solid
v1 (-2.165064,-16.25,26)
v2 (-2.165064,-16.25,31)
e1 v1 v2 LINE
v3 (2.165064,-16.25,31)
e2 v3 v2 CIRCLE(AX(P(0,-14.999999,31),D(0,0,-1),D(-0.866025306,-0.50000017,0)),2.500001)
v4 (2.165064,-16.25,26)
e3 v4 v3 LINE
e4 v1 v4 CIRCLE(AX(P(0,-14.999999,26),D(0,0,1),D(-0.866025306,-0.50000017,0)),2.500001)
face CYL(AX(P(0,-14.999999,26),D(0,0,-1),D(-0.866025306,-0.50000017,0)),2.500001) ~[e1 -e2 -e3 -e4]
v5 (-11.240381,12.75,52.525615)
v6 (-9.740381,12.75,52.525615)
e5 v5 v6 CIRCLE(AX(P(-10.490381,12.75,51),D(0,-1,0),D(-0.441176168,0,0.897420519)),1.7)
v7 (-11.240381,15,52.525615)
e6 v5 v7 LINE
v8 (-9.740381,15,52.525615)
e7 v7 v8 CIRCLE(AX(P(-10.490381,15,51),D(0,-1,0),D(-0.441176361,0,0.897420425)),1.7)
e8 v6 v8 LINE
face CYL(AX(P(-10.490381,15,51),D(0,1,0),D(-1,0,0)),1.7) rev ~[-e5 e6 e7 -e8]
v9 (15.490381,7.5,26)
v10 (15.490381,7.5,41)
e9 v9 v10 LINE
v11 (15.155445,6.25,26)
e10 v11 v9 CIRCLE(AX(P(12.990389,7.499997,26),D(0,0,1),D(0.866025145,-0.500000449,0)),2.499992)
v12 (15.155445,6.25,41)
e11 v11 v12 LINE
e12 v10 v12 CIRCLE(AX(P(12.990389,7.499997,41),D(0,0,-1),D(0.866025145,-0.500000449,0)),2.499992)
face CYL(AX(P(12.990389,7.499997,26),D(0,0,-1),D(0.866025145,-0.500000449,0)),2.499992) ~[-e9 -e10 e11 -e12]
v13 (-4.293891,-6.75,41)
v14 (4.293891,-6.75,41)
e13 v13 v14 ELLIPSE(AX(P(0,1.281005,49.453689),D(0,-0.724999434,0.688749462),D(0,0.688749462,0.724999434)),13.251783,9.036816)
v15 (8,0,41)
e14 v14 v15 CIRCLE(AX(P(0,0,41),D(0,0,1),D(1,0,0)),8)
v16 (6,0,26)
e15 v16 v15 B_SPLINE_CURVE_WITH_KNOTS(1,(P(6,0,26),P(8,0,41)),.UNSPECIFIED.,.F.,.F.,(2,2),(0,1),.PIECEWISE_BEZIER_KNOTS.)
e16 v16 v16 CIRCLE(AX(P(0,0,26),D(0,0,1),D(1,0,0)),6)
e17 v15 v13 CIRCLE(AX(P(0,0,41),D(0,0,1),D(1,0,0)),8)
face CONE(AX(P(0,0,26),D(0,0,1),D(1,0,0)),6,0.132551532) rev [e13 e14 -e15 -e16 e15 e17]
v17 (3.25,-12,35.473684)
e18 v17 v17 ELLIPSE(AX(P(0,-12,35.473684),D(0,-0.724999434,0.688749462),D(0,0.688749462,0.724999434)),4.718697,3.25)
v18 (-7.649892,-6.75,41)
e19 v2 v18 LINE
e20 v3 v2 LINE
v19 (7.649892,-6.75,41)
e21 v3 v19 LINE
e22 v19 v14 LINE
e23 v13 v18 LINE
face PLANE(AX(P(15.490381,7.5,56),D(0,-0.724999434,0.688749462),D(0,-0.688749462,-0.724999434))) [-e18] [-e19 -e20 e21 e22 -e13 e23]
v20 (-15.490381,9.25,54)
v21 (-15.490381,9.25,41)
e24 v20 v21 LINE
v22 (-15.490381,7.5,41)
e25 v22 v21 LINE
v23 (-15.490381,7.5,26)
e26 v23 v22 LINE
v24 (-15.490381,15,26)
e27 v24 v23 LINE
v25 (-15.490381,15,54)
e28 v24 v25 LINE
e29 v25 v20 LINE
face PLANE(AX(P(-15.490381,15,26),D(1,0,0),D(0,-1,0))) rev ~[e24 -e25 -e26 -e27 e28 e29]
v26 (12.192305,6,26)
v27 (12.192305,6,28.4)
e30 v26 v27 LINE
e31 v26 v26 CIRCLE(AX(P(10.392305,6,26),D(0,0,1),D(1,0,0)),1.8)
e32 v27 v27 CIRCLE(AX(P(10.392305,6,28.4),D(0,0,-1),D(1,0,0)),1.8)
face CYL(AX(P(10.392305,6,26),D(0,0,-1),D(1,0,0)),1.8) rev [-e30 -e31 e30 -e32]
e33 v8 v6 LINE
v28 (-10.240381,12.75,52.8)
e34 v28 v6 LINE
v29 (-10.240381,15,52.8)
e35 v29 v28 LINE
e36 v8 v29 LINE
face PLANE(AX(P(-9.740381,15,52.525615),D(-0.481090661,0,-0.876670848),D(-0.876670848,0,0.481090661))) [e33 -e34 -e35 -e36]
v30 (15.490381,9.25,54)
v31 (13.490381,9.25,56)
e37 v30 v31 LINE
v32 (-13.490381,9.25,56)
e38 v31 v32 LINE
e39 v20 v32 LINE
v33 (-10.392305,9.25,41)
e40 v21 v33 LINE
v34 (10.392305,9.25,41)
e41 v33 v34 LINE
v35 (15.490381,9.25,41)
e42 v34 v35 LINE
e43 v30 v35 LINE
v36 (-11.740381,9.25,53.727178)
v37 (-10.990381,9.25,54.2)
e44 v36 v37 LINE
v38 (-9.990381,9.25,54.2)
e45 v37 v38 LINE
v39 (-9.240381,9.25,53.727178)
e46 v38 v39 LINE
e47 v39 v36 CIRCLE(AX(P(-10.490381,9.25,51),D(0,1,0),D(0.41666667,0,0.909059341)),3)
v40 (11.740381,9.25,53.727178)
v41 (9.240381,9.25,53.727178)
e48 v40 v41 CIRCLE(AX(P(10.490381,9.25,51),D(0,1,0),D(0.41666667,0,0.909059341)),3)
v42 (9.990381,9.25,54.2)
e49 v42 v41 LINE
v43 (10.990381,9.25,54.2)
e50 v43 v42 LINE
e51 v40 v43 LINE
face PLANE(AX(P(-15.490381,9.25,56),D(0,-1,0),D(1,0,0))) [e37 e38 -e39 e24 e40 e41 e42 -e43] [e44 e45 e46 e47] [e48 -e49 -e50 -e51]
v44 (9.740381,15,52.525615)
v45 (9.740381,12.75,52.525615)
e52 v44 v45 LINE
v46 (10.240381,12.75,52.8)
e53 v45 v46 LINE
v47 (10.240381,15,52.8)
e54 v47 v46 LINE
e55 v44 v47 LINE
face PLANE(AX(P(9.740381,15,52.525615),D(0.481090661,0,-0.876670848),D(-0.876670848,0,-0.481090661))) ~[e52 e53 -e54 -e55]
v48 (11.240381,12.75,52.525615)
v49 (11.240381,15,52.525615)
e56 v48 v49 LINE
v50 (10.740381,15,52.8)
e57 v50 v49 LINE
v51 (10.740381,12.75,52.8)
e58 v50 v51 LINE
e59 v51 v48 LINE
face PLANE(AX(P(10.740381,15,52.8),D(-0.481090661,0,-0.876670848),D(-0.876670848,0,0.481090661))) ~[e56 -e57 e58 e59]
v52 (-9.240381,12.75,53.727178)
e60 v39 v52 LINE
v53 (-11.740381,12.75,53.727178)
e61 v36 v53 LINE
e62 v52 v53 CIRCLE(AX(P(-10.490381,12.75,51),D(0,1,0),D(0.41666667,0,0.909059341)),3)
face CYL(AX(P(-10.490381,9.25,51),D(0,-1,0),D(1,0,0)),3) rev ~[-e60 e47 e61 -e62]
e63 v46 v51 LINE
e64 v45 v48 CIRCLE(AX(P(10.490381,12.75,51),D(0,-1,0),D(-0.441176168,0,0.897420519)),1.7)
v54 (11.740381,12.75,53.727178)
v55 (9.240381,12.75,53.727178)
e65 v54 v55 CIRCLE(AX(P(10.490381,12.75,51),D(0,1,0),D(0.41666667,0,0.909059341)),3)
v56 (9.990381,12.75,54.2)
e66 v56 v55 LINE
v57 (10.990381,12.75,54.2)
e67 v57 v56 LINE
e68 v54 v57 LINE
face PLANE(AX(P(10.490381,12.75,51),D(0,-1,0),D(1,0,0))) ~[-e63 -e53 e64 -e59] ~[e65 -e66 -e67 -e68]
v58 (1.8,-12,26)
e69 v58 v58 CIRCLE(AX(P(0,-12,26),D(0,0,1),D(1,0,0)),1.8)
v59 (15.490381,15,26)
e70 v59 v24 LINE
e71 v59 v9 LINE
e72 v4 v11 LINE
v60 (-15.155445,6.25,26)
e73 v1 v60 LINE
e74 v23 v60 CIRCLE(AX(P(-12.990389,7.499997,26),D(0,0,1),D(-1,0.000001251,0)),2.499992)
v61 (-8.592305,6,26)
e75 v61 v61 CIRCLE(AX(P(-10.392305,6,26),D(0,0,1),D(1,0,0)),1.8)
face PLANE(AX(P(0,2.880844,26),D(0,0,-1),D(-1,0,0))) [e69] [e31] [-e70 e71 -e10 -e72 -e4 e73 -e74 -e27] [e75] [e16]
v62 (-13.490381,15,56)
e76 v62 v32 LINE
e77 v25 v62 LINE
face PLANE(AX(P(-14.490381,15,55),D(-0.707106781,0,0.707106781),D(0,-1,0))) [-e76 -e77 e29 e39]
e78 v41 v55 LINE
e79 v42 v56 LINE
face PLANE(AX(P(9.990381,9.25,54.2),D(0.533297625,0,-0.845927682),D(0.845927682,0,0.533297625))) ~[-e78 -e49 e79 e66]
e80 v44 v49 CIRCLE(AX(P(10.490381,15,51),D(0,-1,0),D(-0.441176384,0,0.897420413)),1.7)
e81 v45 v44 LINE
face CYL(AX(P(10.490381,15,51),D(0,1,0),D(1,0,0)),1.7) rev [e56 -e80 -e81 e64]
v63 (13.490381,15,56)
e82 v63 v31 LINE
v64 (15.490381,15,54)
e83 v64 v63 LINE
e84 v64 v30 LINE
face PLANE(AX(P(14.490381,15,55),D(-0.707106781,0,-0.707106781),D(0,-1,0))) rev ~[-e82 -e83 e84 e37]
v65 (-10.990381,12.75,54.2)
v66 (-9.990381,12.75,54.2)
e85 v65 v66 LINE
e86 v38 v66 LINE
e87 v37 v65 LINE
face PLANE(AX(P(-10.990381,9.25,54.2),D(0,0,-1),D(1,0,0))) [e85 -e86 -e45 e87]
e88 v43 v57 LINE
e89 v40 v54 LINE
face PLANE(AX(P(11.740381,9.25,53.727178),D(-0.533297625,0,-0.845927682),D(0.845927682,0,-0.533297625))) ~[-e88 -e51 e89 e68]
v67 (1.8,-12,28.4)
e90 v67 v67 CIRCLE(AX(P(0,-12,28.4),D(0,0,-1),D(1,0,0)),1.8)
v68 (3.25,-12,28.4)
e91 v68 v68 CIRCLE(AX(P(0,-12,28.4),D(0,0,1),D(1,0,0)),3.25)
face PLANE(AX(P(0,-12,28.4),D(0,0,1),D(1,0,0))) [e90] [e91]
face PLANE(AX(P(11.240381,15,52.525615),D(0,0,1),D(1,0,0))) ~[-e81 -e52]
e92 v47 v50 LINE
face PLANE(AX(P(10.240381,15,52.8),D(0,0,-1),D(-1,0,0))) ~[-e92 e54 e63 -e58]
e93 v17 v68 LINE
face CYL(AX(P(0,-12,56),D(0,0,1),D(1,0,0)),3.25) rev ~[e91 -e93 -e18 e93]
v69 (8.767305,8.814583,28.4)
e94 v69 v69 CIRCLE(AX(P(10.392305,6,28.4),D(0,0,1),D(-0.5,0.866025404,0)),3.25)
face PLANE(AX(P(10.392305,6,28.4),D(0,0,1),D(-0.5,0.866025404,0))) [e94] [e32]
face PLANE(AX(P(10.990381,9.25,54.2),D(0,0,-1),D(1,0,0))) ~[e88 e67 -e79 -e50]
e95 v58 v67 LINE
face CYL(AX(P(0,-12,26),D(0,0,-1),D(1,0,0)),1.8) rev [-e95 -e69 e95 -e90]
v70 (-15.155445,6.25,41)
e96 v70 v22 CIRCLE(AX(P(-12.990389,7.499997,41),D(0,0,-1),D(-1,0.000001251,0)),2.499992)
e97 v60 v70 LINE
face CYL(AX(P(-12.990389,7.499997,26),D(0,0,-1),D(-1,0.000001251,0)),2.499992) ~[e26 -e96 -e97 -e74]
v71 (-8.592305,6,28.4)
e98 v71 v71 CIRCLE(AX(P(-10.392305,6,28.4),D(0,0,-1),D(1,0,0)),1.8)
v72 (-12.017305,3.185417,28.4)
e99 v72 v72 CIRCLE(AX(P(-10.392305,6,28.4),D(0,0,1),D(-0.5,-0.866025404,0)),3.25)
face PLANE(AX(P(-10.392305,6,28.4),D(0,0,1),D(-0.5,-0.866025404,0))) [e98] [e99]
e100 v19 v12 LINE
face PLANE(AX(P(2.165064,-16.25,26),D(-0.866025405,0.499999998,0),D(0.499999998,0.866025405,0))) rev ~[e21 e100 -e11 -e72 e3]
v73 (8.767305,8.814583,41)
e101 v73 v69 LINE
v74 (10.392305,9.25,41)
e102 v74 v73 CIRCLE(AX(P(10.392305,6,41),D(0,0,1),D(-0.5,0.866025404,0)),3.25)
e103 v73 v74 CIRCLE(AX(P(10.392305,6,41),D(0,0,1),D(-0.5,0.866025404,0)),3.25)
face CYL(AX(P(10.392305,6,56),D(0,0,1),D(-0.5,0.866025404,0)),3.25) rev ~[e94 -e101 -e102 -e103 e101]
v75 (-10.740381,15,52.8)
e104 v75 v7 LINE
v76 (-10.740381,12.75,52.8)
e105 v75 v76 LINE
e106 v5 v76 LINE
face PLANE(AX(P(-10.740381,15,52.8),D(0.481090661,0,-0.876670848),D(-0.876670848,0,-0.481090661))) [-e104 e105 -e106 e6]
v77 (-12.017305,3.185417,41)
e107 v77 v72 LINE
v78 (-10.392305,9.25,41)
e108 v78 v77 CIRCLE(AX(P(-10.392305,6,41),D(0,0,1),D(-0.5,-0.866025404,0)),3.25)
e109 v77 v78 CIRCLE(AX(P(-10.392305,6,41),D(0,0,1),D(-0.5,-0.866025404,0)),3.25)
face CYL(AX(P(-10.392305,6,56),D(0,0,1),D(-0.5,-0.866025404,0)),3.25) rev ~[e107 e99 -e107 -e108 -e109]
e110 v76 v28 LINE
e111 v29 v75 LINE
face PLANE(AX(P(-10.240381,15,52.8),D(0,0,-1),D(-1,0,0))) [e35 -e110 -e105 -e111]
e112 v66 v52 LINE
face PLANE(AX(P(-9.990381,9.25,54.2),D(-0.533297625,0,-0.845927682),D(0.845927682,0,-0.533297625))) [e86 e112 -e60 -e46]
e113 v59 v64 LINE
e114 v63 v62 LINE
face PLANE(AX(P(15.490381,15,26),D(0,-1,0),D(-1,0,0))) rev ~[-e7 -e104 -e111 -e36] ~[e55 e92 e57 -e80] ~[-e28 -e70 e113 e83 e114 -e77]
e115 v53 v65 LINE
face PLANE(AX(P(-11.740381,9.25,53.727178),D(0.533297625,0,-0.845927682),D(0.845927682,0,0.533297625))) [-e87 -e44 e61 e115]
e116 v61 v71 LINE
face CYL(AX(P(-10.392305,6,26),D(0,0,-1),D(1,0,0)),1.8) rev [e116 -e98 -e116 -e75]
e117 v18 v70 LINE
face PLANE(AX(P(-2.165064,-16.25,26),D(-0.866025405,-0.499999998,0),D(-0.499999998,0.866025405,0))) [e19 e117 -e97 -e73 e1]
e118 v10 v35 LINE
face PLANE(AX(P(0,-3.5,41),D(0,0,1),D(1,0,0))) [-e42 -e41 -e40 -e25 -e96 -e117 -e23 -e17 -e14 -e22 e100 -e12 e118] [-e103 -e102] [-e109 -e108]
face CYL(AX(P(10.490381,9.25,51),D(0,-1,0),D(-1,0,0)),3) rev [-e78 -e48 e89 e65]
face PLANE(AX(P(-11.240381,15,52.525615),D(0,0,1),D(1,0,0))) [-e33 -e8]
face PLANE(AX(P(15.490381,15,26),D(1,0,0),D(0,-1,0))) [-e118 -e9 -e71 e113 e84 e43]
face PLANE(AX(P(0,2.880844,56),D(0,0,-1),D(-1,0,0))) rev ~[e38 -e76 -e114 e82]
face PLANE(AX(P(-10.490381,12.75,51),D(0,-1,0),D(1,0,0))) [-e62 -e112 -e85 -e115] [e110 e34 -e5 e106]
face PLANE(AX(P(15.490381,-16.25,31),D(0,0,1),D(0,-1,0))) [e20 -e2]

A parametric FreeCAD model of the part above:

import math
import FreeCAD as App
import Part
import Sketcher
from FreeCAD import Vector
Q = App.Units.Quantity


def edges_at(feature, points):
    """Names of the edges that pass closest to the given points."""
    edges = feature.Shape.Edges
    near = lambda p: min(range(len(edges)), key=lambda i: edges[i].distToShape(Part.Vertex(*p))[0])
    return sorted({f"Edge{near(p) + 1}" for p in points})


def add_polygon(sketch, points):
    """Adds a closed chain of lines whose ends are joined by coincident constraints."""
    first, n = sketch.GeometryCount, len(points)
    for a, b in zip(points, points[1:] + points[:1]):
        sketch.addGeometry(Part.LineSegment(App.Vector(*a, 0), App.Vector(*b, 0)), False)
    for i in range(n):
        sketch.addConstraint(Sketcher.Constraint("Coincident", first + i, 2, first + (i + 1) % n, 1))

doc = App.newDocument("Part")
body = doc.addObject("PartDesign::Body", "Body")

# Sketch on XY plane
sketch1 = doc.addObject("Sketcher::SketchObject", "Sketch")
body.addObject(sketch1)
sketch1.AttachmentSupport = (doc.XY_Plane, [""])
sketch1.MapMode = "FlatFace"
sketch1.addGeometry([
    Part.LineSegment(Vector(-15.2, 6.2, 0), Vector(-2.2, -16.2, 0)),  # 0
    Part.ArcOfCircle(Part.Circle(Vector(0, -15, 0), Vector(0, 0, 1), 2.5), math.radians(-150), math.radians(-30)),  # 1
    Part.LineSegment(Vector(2.2, -16.2, 0), Vector(15.2, 6.2, 0)),  # 2
    Part.ArcOfCircle(Part.Circle(Vector(13, 7.5, 0), Vector(0, 0, 1), 2.5), math.radians(-30), math.radians(0)),  # 3
    Part.LineSegment(Vector(15.5, 7.5, 0), Vector(15.5, 15, 0)),  # 4
    Part.LineSegment(Vector(15.5, 15, 0), Vector(-15.5, 15, 0)),  # 5
    Part.LineSegment(Vector(-15.5, 15, 0), Vector(-15.5, 7.5, 0)),  # 6
    Part.ArcOfCircle(Part.Circle(Vector(-13, 7.5, 0), Vector(0, 0, 1), 2.5), math.radians(180), math.radians(210)),  # 7
    Part.Circle(Vector(0, -12, 0), Vector(0, 0, 1), 1.8),  # 8
    Part.Circle(Vector(10.4, 6, 0), Vector(0, 0, 1), 1.8),  # 9
    Part.Circle(Vector(0, 0, 0), Vector(0, 0, 1), 6),  # 10
    Part.Circle(Vector(-10.4, 6, 0), Vector(0, 0, 1), 1.8),  # 11
], False)
sketch1.addConstraint([
    Sketcher.Constraint("Tangent", 0, 2, 1, 1),
    Sketcher.Constraint("Tangent", 1, 2, 2, 1),
    Sketcher.Constraint("Tangent", 2, 2, 3, 1),
    Sketcher.Constraint("Tangent", 3, 2, 4, 1),
    Sketcher.Constraint("Coincident", 4, 2, 5, 1),
    Sketcher.Constraint("Coincident", 5, 2, 6, 1),
    Sketcher.Constraint("Tangent", 6, 2, 7, 1),
    Sketcher.Constraint("Tangent", 7, 2, 0, 1),
    Sketcher.Constraint("Vertical", 4),
    Sketcher.Constraint("Horizontal", 5),
    Sketcher.Constraint("Vertical", 6),
    Sketcher.Constraint("Coincident", 10, 3, -1, 1),
    Sketcher.Constraint("Equal", 3, 7),
    Sketcher.Constraint("Equal", 8, 9),
    Sketcher.Constraint("Equal", 9, 11),
    Sketcher.Constraint("Symmetric", 3, 3, 7, 3, -2),
    Sketcher.Constraint("Symmetric", 9, 3, 11, 3, -2),
    Sketcher.Constraint("PointOnObject", 1, 3, -2),
    Sketcher.Constraint("PointOnObject", 8, 3, -2),
    Sketcher.Constraint("Diameter", 10, 12.0),
    Sketcher.Constraint("Diameter", 8, 3.6),
    Sketcher.Constraint("Radius", 1, 2.500001),
    Sketcher.Constraint("Angle", 0, Q("-60 deg")),
    Sketcher.Constraint("DistanceY", 4, 1, 4, 2, 7.5),
    Sketcher.Constraint("DistanceY", 1, 3, -1, 1, 14.999999),
    Sketcher.Constraint("DistanceY", 8, 3, -1, 1, 12.0),
    Sketcher.Constraint("DistanceY", -1, 1, 9, 3, 6.0),
    Sketcher.Constraint("DistanceY", -1, 1, 4, 2, 15.0),
    Sketcher.Constraint("DistanceY", -1, 1, 2, 2, 6.25),
    Sketcher.Constraint("DistanceX", 11, 3, 9, 3, 20.78461),
])
pad1 = doc.addObject("PartDesign::Pad", "Pad")
body.addObject(pad1)
pad1.Profile = sketch1
pad1.Length = 30

# Sketch on XY plane
sketch2 = doc.addObject("Sketcher::SketchObject", "Sketch001")
body.addObject(sketch2)
sketch2.AttachmentSupport = (doc.XY_Plane, [""])
sketch2.MapMode = "FlatFace"
sketch2.AttachmentOffset = App.Placement(Vector(0, 0, 30), App.Rotation())
sketch2.addGeometry(Part.Circle(Vector(0, -12, 0), Vector(0, 0, 1), 3.2), False)
sketch2.addConstraint([
    Sketcher.Constraint("PointOnObject", 0, 3, -2),
    Sketcher.Constraint("Diameter", 0, 6.5),
    Sketcher.Constraint("DistanceY", 0, 3, -1, 1, 12.0),
])
pocket1 = doc.addObject("PartDesign::Pocket", "Pocket")
body.addObject(pocket1)
pocket1.Profile = sketch2
pocket1.Length = 27.6
doc.recompute()

polarpattern = doc.addObject("PartDesign::PolarPattern", "PolarPattern")
body.addObject(polarpattern)
polarpattern.Originals = [pocket1]
polarpattern.Axis = (doc.Z_Axis, [""])
polarpattern.Angle = 360
polarpattern.Occurrences = 3
body.Tip = polarpattern

# Sketch on YZ plane
sketch3 = doc.addObject("Sketcher::SketchObject", "Sketch002")
body.addObject(sketch3)
sketch3.AttachmentSupport = (doc.YZ_Plane, [""])
sketch3.MapMode = "FlatFace"
sketch3.AttachmentOffset = App.Placement(Vector(0, 0, 15.490381), App.Rotation())
add_polygon(sketch3, [(-16.2, 5), (7.5, 30), (-18.8, 30), (-18.8, 5)])  # lines 0-3
sketch3.addConstraint([
    Sketcher.Constraint("Horizontal", 1),
    Sketcher.Constraint("Vertical", 2),
    Sketcher.Constraint("Horizontal", 3),
    Sketcher.Constraint("DistanceY", 2, 2, 2, 1, 25.0),
    Sketcher.Constraint("DistanceX", 3, 1, 3, 2, 2.5),
    Sketcher.Constraint("DistanceY", -1, 1, 0, 2, 30.0),
    Sketcher.Constraint("DistanceX", 1, 2, 1, 1, 26.25),
    Sketcher.Constraint("DistanceX", -1, 1, 0, 2, 7.5),
])
pocket2 = doc.addObject("PartDesign::Pocket", "Pocket001")
body.addObject(pocket2)
pocket2.Profile = sketch3
pocket2.Type = "ThroughAll"

# Sketch on XY plane
sketch4 = doc.addObject("Sketcher::SketchObject", "Sketch003")
body.addObject(sketch4)
sketch4.AttachmentSupport = (doc.XY_Plane, [""])
sketch4.MapMode = "FlatFace"
sketch4.AttachmentOffset = App.Placement(Vector(0, 0, 30), App.Rotation())
add_polygon(sketch4, [(-15, 9), (-15, -16), (15, -16), (15, 9)])  # lines 0-3
sketch4.addConstraint([
    Sketcher.Constraint("Vertical", 0),
    Sketcher.Constraint("Horizontal", 1),
    Sketcher.Constraint("Vertical", 2),
    Sketcher.Constraint("Horizontal", 3),
    Sketcher.Constraint("DistanceY", 0, 2, 0, 1, 25.5),
    Sketcher.Constraint("DistanceY", 0, 2, -1, 1, 16.25),
    Sketcher.Constraint("DistanceX", 1, 1, 1, 2, 30.980762),
    Sketcher.Constraint("DistanceX", 0, 2, -1, 1, 15.490381),
])
pocket3 = doc.addObject("PartDesign::Pocket", "Pocket002")
body.addObject(pocket3)
pocket3.Profile = sketch4
pocket3.Length = 15

# Sketch on XZ plane
sketch5 = doc.addObject("Sketcher::SketchObject", "Sketch004")
body.addObject(sketch5)
sketch5.AttachmentSupport = (doc.XZ_Plane, [""])
sketch5.MapMode = "FlatFace"
sketch5.AttachmentOffset = App.Placement(Vector(0, 0, -15), App.Rotation())
sketch5.addGeometry(Part.Circle(Vector(-10.5, 25, 0), Vector(0, 0, 1), 1.7), False)
sketch5.addConstraint([
    Sketcher.Constraint("Diameter", 0, 3.4),
    Sketcher.Constraint("DistanceY", -1, 1, 0, 3, 25.0),
    Sketcher.Constraint("DistanceX", 0, 3, -1, 1, 10.490381),
])
pocket4 = doc.addObject("PartDesign::Pocket", "Pocket003")
body.addObject(pocket4)
pocket4.Profile = sketch5
pocket4.Type = "ThroughAll"
pocket4.Reversed = True
doc.recompute()

mirrored = doc.addObject("PartDesign::Mirrored", "Mirrored")
body.addObject(mirrored)
mirrored.Originals = [pocket4]
mirrored.MirrorPlane = (doc.YZ_Plane, [""])
body.Tip = mirrored

# Sketch on XZ plane
sketch6 = doc.addObject("Sketcher::SketchObject", "Sketch005")
body.addObject(sketch6)
sketch6.AttachmentSupport = (doc.XZ_Plane, [""])
sketch6.MapMode = "FlatFace"
sketch6.AttachmentOffset = App.Placement(Vector(0, 0, -9.25), App.Rotation())
sketch6.addGeometry(Part.Circle(Vector(-10.5, 25, 0), Vector(0, 0, 1), 3), False)
sketch6.addConstraint([
    Sketcher.Constraint("Diameter", 0, 6.0),
    Sketcher.Constraint("DistanceY", -1, 1, 0, 3, 25.0),
    Sketcher.Constraint("DistanceX", 0, 3, -1, 1, 10.490381),
])
pocket5 = doc.addObject("PartDesign::Pocket", "Pocket004")
body.addObject(pocket5)
pocket5.Profile = sketch6
pocket5.Length = 3.5
doc.recompute()

mirrored2 = doc.addObject("PartDesign::Mirrored", "Mirrored001")
body.addObject(mirrored2)
mirrored2.Originals = [pocket5]
mirrored2.MirrorPlane = (doc.YZ_Plane, [""])
body.Tip = mirrored2
doc.recompute()

chamfer = doc.addObject("PartDesign::Chamfer", "Chamfer")
body.addObject(chamfer)
chamfer.Base = (mirrored2, edges_at(mirrored2, [(-15.49, 12.125, 30), (15.49, 12.125, 30)]))
chamfer.Size = 2

# Sketch on XZ plane
sketch7 = doc.addObject("Sketcher::SketchObject", "Sketch006")
body.addObject(sketch7)
sketch7.AttachmentSupport = (doc.XZ_Plane, [""])
sketch7.MapMode = "FlatFace"
sketch7.AttachmentOffset = App.Placement(Vector(0, 0, -15), App.Rotation())
add_polygon(sketch7, [(-10.2, 26.8), (-9.7, 26.5), (-11.2, 26.5), (-10.7, 26.8)])  # lines 0-3
sketch7.addConstraint([
    Sketcher.Constraint("Horizontal", 1),
    Sketcher.Constraint("Horizontal", 3),
    Sketcher.Constraint("Equal", 0, 2),
    Sketcher.Constraint("DistanceX", 1, 2, 1, 1, 1.5),
    Sketcher.Constraint("DistanceX", 3, 1, 3, 2, 0.5),
    Sketcher.Constraint("DistanceY", -1, 1, 2, 2, 26.8),
    Sketcher.Constraint("Distance", 0, 0.570339),
    Sketcher.Constraint("DistanceX", 0, 2, -1, 1, 9.740381),
])
pocket6 = doc.addObject("PartDesign::Pocket", "Pocket005")
body.addObject(pocket6)
pocket6.Profile = sketch7
pocket6.Type = "ThroughAll"
pocket6.Reversed = True
doc.recompute()

mirrored3 = doc.addObject("PartDesign::Mirrored", "Mirrored002")
body.addObject(mirrored3)
mirrored3.Originals = [pocket6]
mirrored3.MirrorPlane = (doc.YZ_Plane, [""])
body.Tip = mirrored3

# Sketch on XZ plane
sketch8 = doc.addObject("Sketcher::SketchObject", "Sketch007")
body.addObject(sketch8)
sketch8.AttachmentSupport = (doc.XZ_Plane, [""])
sketch8.MapMode = "FlatFace"
sketch8.AttachmentOffset = App.Placement(Vector(0, 0, -9.25), App.Rotation())
add_polygon(sketch8, [(-11, 28.2), (-11.7, 27.7), (-9.2, 27.7), (-10, 28.2)])  # lines 0-3
sketch8.addConstraint([
    Sketcher.Constraint("Horizontal", 1),
    Sketcher.Constraint("Horizontal", 3),
    Sketcher.Constraint("Equal", 0, 2),
    Sketcher.Constraint("DistanceX", 3, 2, 3, 1, 1.0),
    Sketcher.Constraint("DistanceX", 1, 1, 1, 2, 2.5),
    Sketcher.Constraint("DistanceY", -1, 1, 2, 2, 28.2),
    Sketcher.Constraint("Distance", 0, 0.886601),
    Sketcher.Constraint("DistanceX", 0, 2, -1, 1, 11.740381),
])
pocket7 = doc.addObject("PartDesign::Pocket", "Pocket006")
body.addObject(pocket7)
pocket7.Profile = sketch8
pocket7.Length = 3.5
doc.recompute()

mirrored4 = doc.addObject("PartDesign::Mirrored", "Mirrored003")
body.addObject(mirrored4)
mirrored4.Originals = [pocket7]
mirrored4.MirrorPlane = (doc.YZ_Plane, [""])
body.Tip = mirrored4

# Sketch on XY plane
sketch9 = doc.addObject("Sketcher::SketchObject", "Sketch008")
body.addObject(sketch9)
sketch9.AttachmentSupport = (doc.XY_Plane, [""])
sketch9.MapMode = "FlatFace"
sketch9.addGeometry(Part.Circle(Vector(0, 0, 0), Vector(0, 0, 1), 6), False)
sketch9.addConstraint([
    Sketcher.Constraint("Coincident", 0, 3, -1, 1),
    Sketcher.Constraint("Diameter", 0, 12.0),
])

# Sketch on XY plane
sketch10 = doc.addObject("Sketcher::SketchObject", "Sketch009")
body.addObject(sketch10)
sketch10.AttachmentSupport = (doc.XY_Plane, [""])
sketch10.MapMode = "FlatFace"
sketch10.AttachmentOffset = App.Placement(Vector(0, 0, 15), App.Rotation())
sketch10.addGeometry(Part.Circle(Vector(0, 0, 0), Vector(0, 0, 1), 8), False)
sketch10.addConstraint([
    Sketcher.Constraint("Coincident", 0, 3, -1, 1),
    Sketcher.Constraint("Diameter", 0, 16.0),
])

subtractiveloft = doc.addObject("PartDesign::SubtractiveLoft", "SubtractiveLoft")
body.addObject(subtractiveloft)
subtractiveloft.Profile = sketch9
subtractiveloft.Sections = [sketch10]
body2 = doc.addObject("PartDesign::Body", "Body001")
doc.recompute()

body.Placement = App.Placement(Vector(0, 0, 26), App.Rotation(Vector(0, 0, 1), 0))
boolean = doc.addObject("PartDesign::Boolean", "Boolean")
body2.addObject(boolean)
boolean.Type = "Fuse"
boolean.addObjects([body])

doc.recompute()
